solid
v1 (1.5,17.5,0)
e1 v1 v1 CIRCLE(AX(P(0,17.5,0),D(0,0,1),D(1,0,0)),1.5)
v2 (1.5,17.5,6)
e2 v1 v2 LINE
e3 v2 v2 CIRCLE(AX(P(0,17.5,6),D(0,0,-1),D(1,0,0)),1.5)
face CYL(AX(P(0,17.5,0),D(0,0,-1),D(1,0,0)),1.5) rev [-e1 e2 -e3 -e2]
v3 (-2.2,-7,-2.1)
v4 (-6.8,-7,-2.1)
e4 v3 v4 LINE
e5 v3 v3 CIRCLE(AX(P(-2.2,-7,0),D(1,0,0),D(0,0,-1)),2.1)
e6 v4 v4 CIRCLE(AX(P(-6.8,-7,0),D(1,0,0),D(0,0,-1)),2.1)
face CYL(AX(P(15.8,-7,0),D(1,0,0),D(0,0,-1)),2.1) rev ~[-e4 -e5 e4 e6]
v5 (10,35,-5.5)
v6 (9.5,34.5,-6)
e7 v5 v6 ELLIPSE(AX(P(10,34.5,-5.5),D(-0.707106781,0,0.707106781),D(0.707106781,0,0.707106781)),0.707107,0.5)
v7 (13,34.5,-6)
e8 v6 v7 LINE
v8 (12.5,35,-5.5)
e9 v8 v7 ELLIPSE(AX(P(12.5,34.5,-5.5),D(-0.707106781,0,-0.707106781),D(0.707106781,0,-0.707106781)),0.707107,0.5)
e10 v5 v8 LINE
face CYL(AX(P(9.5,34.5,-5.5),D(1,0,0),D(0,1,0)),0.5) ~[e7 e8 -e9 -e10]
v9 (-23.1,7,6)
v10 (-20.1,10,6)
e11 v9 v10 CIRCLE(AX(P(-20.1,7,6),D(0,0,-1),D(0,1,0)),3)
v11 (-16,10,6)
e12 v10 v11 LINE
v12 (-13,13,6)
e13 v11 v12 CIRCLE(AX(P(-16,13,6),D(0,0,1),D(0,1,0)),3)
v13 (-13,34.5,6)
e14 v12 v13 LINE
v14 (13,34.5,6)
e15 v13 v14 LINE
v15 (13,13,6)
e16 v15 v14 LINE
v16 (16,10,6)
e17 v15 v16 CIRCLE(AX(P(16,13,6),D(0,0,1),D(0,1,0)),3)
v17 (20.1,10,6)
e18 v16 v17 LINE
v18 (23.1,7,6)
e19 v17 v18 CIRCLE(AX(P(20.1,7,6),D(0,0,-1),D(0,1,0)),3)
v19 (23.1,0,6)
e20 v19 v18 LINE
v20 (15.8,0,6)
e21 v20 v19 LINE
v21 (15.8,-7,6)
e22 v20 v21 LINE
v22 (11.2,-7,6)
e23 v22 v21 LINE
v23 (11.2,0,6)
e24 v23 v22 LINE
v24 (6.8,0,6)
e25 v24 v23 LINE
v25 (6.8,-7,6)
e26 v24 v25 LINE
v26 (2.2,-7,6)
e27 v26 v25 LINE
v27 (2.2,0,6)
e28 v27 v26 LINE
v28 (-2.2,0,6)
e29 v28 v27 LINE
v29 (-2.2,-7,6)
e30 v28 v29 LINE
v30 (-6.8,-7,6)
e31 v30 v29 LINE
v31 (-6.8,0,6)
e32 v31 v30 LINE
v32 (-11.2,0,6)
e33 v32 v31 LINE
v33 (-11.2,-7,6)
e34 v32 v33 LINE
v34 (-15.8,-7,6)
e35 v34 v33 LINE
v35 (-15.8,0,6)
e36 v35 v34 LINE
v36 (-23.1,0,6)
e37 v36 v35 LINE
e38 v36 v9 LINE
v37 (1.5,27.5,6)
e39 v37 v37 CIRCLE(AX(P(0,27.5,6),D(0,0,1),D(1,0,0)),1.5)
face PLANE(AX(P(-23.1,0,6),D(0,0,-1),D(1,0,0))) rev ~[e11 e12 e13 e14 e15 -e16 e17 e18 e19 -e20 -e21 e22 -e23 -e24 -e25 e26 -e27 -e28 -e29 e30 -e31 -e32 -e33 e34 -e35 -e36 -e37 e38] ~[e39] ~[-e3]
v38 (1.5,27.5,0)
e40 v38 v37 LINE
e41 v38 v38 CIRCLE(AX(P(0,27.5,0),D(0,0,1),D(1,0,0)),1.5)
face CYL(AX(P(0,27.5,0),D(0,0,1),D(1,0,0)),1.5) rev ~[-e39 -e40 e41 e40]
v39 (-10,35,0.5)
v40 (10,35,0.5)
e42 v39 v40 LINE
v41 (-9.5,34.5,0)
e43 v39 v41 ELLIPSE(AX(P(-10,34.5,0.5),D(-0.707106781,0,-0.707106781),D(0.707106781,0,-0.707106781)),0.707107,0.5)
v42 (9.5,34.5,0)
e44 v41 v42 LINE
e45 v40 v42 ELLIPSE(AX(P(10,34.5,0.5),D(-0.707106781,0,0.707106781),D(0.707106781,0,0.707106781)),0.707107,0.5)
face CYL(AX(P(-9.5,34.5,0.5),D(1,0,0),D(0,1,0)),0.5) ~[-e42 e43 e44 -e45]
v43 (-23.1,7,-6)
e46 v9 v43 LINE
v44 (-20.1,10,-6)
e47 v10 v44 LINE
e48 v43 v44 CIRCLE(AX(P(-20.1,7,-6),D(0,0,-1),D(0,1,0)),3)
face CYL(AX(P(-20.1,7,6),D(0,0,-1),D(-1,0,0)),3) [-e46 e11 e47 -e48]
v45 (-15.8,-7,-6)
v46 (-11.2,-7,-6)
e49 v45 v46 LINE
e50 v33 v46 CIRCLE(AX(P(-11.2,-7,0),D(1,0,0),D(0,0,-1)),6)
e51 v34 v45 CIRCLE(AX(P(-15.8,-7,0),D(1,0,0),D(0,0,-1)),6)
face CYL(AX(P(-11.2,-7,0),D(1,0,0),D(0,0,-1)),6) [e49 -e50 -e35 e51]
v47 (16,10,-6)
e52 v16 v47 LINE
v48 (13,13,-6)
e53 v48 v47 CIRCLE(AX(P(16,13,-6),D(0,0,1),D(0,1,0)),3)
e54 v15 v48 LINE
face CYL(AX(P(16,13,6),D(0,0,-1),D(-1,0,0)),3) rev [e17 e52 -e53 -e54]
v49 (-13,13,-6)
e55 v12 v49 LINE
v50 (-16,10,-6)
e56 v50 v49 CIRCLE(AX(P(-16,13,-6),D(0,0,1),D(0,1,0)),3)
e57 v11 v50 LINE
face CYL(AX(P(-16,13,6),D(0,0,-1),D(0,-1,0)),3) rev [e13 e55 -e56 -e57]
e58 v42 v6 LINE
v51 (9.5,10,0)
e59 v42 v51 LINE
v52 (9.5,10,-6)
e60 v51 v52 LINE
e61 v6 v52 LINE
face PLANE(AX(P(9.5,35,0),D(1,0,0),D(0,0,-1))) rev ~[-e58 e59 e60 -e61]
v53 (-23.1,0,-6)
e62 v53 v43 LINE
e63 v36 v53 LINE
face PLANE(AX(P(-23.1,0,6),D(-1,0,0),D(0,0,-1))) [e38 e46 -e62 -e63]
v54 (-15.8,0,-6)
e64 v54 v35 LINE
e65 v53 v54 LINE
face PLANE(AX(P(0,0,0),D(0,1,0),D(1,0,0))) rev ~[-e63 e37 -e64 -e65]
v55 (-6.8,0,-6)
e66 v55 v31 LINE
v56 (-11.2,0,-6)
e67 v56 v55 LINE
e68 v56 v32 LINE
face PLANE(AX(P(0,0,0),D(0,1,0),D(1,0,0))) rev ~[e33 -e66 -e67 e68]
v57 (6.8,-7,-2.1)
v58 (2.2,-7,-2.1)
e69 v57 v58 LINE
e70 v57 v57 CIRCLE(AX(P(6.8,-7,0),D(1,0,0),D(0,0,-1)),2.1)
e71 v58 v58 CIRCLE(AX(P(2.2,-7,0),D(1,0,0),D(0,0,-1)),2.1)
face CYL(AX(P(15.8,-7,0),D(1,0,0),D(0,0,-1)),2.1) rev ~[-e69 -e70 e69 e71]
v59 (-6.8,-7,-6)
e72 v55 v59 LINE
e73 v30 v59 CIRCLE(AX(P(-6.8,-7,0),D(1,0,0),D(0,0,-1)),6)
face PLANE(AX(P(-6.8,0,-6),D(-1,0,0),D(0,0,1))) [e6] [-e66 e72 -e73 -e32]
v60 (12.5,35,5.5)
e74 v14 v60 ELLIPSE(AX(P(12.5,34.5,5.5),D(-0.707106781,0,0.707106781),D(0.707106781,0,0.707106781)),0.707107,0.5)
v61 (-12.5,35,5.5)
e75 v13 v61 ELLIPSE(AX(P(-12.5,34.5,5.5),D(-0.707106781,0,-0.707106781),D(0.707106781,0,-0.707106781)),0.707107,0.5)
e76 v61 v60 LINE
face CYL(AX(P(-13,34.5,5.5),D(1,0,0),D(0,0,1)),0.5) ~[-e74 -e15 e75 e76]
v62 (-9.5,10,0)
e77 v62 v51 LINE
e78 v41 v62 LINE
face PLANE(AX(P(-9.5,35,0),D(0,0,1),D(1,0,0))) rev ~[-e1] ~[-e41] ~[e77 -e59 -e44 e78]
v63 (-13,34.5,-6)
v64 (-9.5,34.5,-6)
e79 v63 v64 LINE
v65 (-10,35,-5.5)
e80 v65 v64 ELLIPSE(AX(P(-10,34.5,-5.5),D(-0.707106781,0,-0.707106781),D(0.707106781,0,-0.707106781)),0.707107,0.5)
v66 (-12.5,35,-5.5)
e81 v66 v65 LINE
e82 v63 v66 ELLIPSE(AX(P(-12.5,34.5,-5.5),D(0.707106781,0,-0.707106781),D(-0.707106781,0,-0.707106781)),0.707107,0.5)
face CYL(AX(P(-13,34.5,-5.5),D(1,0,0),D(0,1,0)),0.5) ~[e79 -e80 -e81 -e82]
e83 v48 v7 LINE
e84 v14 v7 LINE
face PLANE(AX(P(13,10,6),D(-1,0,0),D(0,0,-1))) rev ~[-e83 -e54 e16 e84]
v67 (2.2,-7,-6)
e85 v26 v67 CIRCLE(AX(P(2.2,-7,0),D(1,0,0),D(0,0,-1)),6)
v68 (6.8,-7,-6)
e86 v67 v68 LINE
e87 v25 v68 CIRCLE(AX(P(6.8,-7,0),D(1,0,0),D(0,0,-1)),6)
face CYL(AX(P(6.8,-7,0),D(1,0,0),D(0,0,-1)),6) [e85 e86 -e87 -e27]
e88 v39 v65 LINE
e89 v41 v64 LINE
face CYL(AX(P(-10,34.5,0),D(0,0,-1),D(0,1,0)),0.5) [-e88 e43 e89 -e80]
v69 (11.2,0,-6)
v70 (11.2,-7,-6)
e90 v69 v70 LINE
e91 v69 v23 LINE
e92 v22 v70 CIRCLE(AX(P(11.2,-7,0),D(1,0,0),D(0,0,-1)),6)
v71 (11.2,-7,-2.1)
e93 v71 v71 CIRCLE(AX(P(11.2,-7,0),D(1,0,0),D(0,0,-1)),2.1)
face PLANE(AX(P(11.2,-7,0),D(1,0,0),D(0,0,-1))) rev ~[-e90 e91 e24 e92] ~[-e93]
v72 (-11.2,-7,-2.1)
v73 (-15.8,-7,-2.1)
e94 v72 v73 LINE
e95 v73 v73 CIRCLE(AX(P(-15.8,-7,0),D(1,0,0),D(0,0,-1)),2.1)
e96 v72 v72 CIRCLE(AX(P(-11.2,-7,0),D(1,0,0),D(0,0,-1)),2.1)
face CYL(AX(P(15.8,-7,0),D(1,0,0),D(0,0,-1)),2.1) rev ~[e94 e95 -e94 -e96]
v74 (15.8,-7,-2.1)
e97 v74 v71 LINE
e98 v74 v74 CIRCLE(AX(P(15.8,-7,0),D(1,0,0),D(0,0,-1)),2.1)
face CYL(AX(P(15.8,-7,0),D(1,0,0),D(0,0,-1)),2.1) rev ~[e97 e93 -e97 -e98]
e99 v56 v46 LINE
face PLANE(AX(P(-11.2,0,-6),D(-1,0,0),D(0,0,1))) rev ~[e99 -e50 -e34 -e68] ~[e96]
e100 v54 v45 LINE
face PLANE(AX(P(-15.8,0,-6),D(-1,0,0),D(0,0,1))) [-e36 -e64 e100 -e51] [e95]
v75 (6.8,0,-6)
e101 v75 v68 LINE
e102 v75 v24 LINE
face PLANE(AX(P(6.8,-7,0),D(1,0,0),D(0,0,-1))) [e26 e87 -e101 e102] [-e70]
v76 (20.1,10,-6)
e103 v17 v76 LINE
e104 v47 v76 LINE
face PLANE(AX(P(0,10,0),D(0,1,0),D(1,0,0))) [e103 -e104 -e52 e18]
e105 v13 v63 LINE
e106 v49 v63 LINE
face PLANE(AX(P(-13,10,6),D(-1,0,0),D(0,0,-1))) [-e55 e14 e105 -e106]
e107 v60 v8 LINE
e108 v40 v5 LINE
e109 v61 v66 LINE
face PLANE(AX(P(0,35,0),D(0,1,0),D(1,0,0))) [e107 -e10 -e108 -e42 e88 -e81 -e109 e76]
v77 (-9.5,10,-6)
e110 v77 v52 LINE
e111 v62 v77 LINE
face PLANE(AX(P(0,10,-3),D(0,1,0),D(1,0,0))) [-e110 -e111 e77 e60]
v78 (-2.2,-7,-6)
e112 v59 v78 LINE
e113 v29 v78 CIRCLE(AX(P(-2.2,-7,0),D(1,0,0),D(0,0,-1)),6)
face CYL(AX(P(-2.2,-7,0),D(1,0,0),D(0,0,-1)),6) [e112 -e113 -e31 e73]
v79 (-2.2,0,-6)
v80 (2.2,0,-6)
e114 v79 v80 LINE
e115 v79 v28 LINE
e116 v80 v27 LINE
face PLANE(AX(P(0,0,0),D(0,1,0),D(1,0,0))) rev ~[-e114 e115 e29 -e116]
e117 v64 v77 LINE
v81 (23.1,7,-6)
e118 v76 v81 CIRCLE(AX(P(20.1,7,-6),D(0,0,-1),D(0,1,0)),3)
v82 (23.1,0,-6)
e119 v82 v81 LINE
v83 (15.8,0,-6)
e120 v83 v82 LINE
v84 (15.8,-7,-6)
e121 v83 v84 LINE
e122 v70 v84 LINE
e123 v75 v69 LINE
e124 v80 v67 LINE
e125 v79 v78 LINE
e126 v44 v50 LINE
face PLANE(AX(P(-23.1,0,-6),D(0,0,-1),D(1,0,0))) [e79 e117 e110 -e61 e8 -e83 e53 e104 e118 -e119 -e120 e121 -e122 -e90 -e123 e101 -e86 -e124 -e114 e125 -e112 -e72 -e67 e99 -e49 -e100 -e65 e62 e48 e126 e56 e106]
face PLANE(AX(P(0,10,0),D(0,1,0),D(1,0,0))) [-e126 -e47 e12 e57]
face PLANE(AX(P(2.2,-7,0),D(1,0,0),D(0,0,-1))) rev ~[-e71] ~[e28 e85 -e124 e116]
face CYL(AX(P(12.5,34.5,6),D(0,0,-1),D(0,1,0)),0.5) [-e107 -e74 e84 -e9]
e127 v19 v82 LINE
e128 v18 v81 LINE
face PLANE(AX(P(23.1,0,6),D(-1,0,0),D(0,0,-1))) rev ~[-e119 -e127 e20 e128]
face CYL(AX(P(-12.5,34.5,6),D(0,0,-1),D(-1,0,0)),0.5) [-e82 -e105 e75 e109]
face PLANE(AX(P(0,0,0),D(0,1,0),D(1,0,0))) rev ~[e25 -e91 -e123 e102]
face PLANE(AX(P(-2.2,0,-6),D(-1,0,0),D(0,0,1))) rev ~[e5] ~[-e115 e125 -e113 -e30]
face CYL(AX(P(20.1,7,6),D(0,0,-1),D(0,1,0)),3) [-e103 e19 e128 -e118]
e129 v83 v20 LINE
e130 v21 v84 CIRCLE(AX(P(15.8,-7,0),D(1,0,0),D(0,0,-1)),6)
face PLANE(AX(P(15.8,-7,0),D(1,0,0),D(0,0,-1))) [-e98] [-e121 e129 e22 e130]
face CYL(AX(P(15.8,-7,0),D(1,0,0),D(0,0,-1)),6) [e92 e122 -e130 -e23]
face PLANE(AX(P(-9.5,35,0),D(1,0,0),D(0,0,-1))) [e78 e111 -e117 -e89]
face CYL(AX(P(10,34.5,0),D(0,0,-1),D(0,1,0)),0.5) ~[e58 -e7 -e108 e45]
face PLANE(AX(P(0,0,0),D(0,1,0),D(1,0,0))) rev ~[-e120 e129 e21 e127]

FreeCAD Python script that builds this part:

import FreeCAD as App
import Part
import Sketcher


def edges_at(feature, points):
    """Names of the edges that pass closest to the given points."""
    edges = feature.Shape.Edges
    near = lambda p: min(range(len(edges)), key=lambda i: edges[i].distToShape(Part.Vertex(*p))[0])
    return sorted({f"Edge{near(p) + 1}" for p in points})

doc = App.newDocument("Part")
params = doc.addObject("Spreadsheet::Sheet", "Params")
for row, (alias, value) in enumerate([
    ("sketch1_height", "12 mm"),
    ("sketch1_width", "46.2 mm"),
    ("pad1_length", "10 mm"),
    ("sketch2_height", "12 mm"),
    ("sketch2_width", "4.6 mm"),
    ("pad2_length", "7 mm"),
    ("sketch3_diameter", "12 mm"),
    ("pad3_length", "4.6 mm"),
    ("linearpattern_pitch", "9 mm"),
    ("sketch4_diameter", "4.2 mm"),
    ("sketch5_width", "26 mm"),
    ("sketch5_height", "12 mm"),
    ("pad4_length", "25 mm"),
    ("sketch6_width", "19 mm"),
    ("sketch6_height", "6 mm"),
    ("pocket2_length", "25 mm"),
    ("fillet_radius", "3 mm"),
    ("fillet2_radius", "0.5 mm"),
    ("sketch7_diameter", "3 mm"),
    ("pocket3_length", "20 mm"),
], start=1):
    params.set(f"A{row}", alias)
    params.set(f"B{row}", "=" + value)
    params.setAlias(f"B{row}", alias)

body = doc.addObject("PartDesign::Body", "Body")

# Sketch on XZ plane
sketch1 = body.newObject("Sketcher::SketchObject", "Sketch")
sketch1.AttachmentSupport = (doc.getObject("XZ_Plane"), [""])
sketch1.MapMode = "FlatFace"
sketch1.addGeometry([
    Part.LineSegment(App.Vector(-23, -6, 0), App.Vector(-23, 6, 0)),
    Part.LineSegment(App.Vector(-23, 6, 0), App.Vector(23, 6, 0)),
    Part.LineSegment(App.Vector(23, 6, 0), App.Vector(23, -6, 0)),
    Part.LineSegment(App.Vector(23, -6, 0), App.Vector(-23, -6, 0)),
], False)
sketch1.addConstraint([
    Sketcher.Constraint("Coincident", 0, 2, 1, 1),
    Sketcher.Constraint("Coincident", 1, 2, 2, 1),
    Sketcher.Constraint("Coincident", 2, 2, 3, 1),
    Sketcher.Constraint("Coincident", 3, 2, 0, 1),
    Sketcher.Constraint("Vertical", 0),
    Sketcher.Constraint("Horizontal", 1),
    Sketcher.Constraint("Vertical", 2),
    Sketcher.Constraint("Horizontal", 3),
    Sketcher.Constraint("Symmetric", 0, 2, 2, 2, -1, 1),
    Sketcher.Constraint("DistanceY", 0, 1, 0, 2, 12.0),
    Sketcher.Constraint("DistanceX", 1, 1, 1, 2, 46.2),
])
sketch1.setExpression("Constraints[9]", "Params.sketch1_height")
sketch1.setExpression("Constraints[10]", "Params.sketch1_width")
pad1 = body.newObject("PartDesign::Pad", "Pad")
pad1.Profile = sketch1
pad1.setExpression("Length", "Params.pad1_length")
pad1.Reversed = True

# Sketch on XZ plane
sketch2 = body.newObject("Sketcher::SketchObject", "Sketch001")
sketch2.AttachmentSupport = (doc.getObject("XZ_Plane"), [""])
sketch2.MapMode = "FlatFace"
sketch2.addGeometry([
    Part.LineSegment(App.Vector(11.2, 6, 0), App.Vector(11.2, -6, 0)),
    Part.LineSegment(App.Vector(11.2, -6, 0), App.Vector(15.8, -6, 0)),
    Part.LineSegment(App.Vector(15.8, -6, 0), App.Vector(15.8, 6, 0)),
    Part.LineSegment(App.Vector(15.8, 6, 0), App.Vector(11.2, 6, 0)),
], False)
sketch2.addConstraint([
    Sketcher.Constraint("Coincident", 0, 2, 1, 1),
    Sketcher.Constraint("Coincident", 1, 2, 2, 1),
    Sketcher.Constraint("Coincident", 2, 2, 3, 1),
    Sketcher.Constraint("Coincident", 3, 2, 0, 1),
    Sketcher.Constraint("Vertical", 0),
    Sketcher.Constraint("Horizontal", 1),
    Sketcher.Constraint("Vertical", 2),
    Sketcher.Constraint("Horizontal", 3),
    Sketcher.Constraint("DistanceY", 0, 2, 0, 1, 12.0),
    Sketcher.Constraint("DistanceX", 1, 1, 1, 2, 4.6),
    Sketcher.Constraint("DistanceY", 0, 2, -1, 1, 6.0),
    Sketcher.Constraint("DistanceX", -1, 1, 0, 2, 11.2),
])
sketch2.setExpression("Constraints[8]", "Params.sketch2_height")
sketch2.setExpression("Constraints[9]", "Params.sketch2_width")
pad2 = body.newObject("PartDesign::Pad", "Pad001")
pad2.Profile = sketch2
pad2.setExpression("Length", "Params.pad2_length")

# Sketch on YZ plane
sketch3 = body.newObject("Sketcher::SketchObject", "Sketch002")
sketch3.AttachmentSupport = (doc.getObject("YZ_Plane"), [""])
sketch3.MapMode = "FlatFace"
sketch3.AttachmentOffset = App.Placement(App.Vector(0, 0, 15.8), App.Rotation())
sketch3.addGeometry(Part.Circle(App.Vector(-7, 0, 0), App.Vector(0, 0, 1), 6), False)
sketch3.addConstraint([
    Sketcher.Constraint("PointOnObject", 0, 3, -1),
    Sketcher.Constraint("Diameter", 0, 12.0),
    Sketcher.Constraint("DistanceX", 0, 3, -1, 1, 7.0),
])
sketch3.setExpression("Constraints[1]", "Params.sketch3_diameter")
pad3 = body.newObject("PartDesign::Pad", "Pad002")
pad3.Profile = sketch3
pad3.setExpression("Length", "Params.pad3_length")
pad3.Reversed = True
doc.recompute()

linearpattern = body.newObject("PartDesign::LinearPattern", "LinearPattern")
linearpattern.Originals = [pad2, pad3]
linearpattern.Direction = (doc.getObject("X_Axis"), [""])
linearpattern.Mode = "offset"
linearpattern.setExpression("Offset", "Params.linearpattern_pitch")
linearpattern.Occurrences = 4
linearpattern.Reversed = True
body.Tip = linearpattern

# Sketch on YZ plane
sketch4 = body.newObject("Sketcher::SketchObject", "Sketch003")
sketch4.AttachmentSupport = (doc.getObject("YZ_Plane"), [""])
sketch4.MapMode = "FlatFace"
sketch4.AttachmentOffset = App.Placement(App.Vector(0, 0, 15.8), App.Rotation())
sketch4.addGeometry(Part.Circle(App.Vector(-7, 0, 0), App.Vector(0, 0, 1), 2.1), False)
sketch4.addConstraint([
    Sketcher.Constraint("PointOnObject", 0, 3, -1),
    Sketcher.Constraint("Diameter", 0, 4.2),
    Sketcher.Constraint("DistanceX", 0, 3, -1, 1, 7.0),
])
sketch4.setExpression("Constraints[1]", "Params.sketch4_diameter")
pocket1 = body.newObject("PartDesign::Pocket", "Pocket")
pocket1.Profile = sketch4
pocket1.Type = "ThroughAll"

# Sketch on XZ plane
sketch5 = body.newObject("Sketcher::SketchObject", "Sketch004")
sketch5.AttachmentSupport = (doc.getObject("XZ_Plane"), [""])
sketch5.MapMode = "FlatFace"
sketch5.AttachmentOffset = App.Placement(App.Vector(0, 0, -10), App.Rotation())
sketch5.addGeometry([
    Part.LineSegment(App.Vector(-13, -6, 0), App.Vector(-13, 6, 0)),
    Part.LineSegment(App.Vector(-13, 6, 0), App.Vector(13, 6, 0)),
    Part.LineSegment(App.Vector(13, 6, 0), App.Vector(13, -6, 0)),
    Part.LineSegment(App.Vector(13, -6, 0), App.Vector(-13, -6, 0)),
], False)
sketch5.addConstraint([
    Sketcher.Constraint("Coincident", 0, 2, 1, 1),
    Sketcher.Constraint("Coincident", 1, 2, 2, 1),
    Sketcher.Constraint("Coincident", 2, 2, 3, 1),
    Sketcher.Constraint("Coincident", 3, 2, 0, 1),
    Sketcher.Constraint("Vertical", 0),
    Sketcher.Constraint("Horizontal", 1),
    Sketcher.Constraint("Vertical", 2),
    Sketcher.Constraint("Horizontal", 3),
    Sketcher.Constraint("Symmetric", 0, 2, 2, 2, -1, 1),
    Sketcher.Constraint("DistanceX", 1, 1, 1, 2, 26.0),
    Sketcher.Constraint("DistanceY", 0, 1, 0, 2, 12.0),
])
sketch5.setExpression("Constraints[9]", "Params.sketch5_width")
sketch5.setExpression("Constraints[10]", "Params.sketch5_height")
pad4 = body.newObject("PartDesign::Pad", "Pad003")
pad4.Profile = sketch5
pad4.setExpression("Length", "Params.pad4_length")
pad4.Reversed = True

# Sketch on XZ plane
sketch6 = body.newObject("Sketcher::SketchObject", "Sketch005")
sketch6.AttachmentSupport = (doc.getObject("XZ_Plane"), [""])
sketch6.MapMode = "FlatFace"
sketch6.AttachmentOffset = App.Placement(App.Vector(0, 0, -35), App.Rotation())
sketch6.addGeometry([
    Part.LineSegment(App.Vector(-10, -6, 0), App.Vector(-10, 0, 0)),
    Part.LineSegment(App.Vector(-10, 0, 0), App.Vector(10, 0, 0)),
    Part.LineSegment(App.Vector(10, 0, 0), App.Vector(10, -6, 0)),
    Part.LineSegment(App.Vector(10, -6, 0), App.Vector(-10, -6, 0)),
], False)
sketch6.addConstraint([
    Sketcher.Constraint("Coincident", 0, 2, 1, 1),
    Sketcher.Constraint("Coincident", 1, 2, 2, 1),
    Sketcher.Constraint("Coincident", 2, 2, 3, 1),
    Sketcher.Constraint("Coincident", 3, 2, 0, 1),
    Sketcher.Constraint("Vertical", 0),
    Sketcher.Constraint("Horizontal", 1),
    Sketcher.Constraint("Vertical", 2),
    Sketcher.Constraint("Horizontal", 3),
    Sketcher.Constraint("Symmetric", 0, 2, 1, 2, -1, 1),
    Sketcher.Constraint("DistanceX", 1, 1, 1, 2, 19.0),
    Sketcher.Constraint("DistanceY", 0, 1, 0, 2, 6.0),
])
sketch6.setExpression("Constraints[9]", "Params.sketch6_width")
sketch6.setExpression("Constraints[10]", "Params.sketch6_height")
pocket2 = body.newObject("PartDesign::Pocket", "Pocket001")
pocket2.Profile = sketch6
pocket2.setExpression("Length", "Params.pocket2_length")
pocket2.Reversed = True
doc.recompute()

fillet = body.newObject("PartDesign::Fillet", "Fillet")
fillet.Base = (pocket2, edges_at(pocket2, [
    (-13, 10, 0),
    (13, 10, 0),
    (23.1, 10, 0),
    (-23.1, 10, 0),
]))
fillet.setExpression("Radius", "Params.fillet_radius")
doc.recompute()

fillet2 = body.newObject("PartDesign::Fillet", "Fillet001")
fillet2.Base = (fillet, edges_at(fillet, [
    (-13, 35, 0),
    (0, 35, 6),
    (13, 35, 0),
    (11.25, 35, -6),
    (-11.25, 35, -6),
    (-9.5, 35, -3),
    (0, 35, 0),
    (9.5, 35, -3),
]))
fillet2.setExpression("Radius", "Params.fillet2_radius")

# Sketch on XY plane
sketch7 = body.newObject("Sketcher::SketchObject", "Sketch006")
sketch7.AttachmentSupport = (doc.getObject("XY_Plane"), [""])
sketch7.MapMode = "FlatFace"
sketch7.addGeometry([
    Part.Circle(App.Vector(0, 17.5, 0), App.Vector(0, 0, 1), 1.5),
    Part.Circle(App.Vector(0, 27.5, 0), App.Vector(0, 0, 1), 1.5),
], False)
sketch7.addConstraint([
    Sketcher.Constraint("Equal", 0, 1),
    Sketcher.Constraint("PointOnObject", 0, 3, -2),
    Sketcher.Constraint("PointOnObject", 1, 3, -2),
    Sketcher.Constraint("Diameter", 0, 3.0),
    Sketcher.Constraint("DistanceY", 0, 3, 1, 3, 10.0),
    Sketcher.Constraint("DistanceY", -1, 1, 0, 3, 17.5),
])
sketch7.setExpression("Constraints[3]", "Params.sketch7_diameter")
pocket3 = body.newObject("PartDesign::Pocket", "Pocket002")
pocket3.Profile = sketch7
pocket3.setExpression("Length", "Params.pocket3_length")
pocket3.Midplane = True

doc.recompute()
